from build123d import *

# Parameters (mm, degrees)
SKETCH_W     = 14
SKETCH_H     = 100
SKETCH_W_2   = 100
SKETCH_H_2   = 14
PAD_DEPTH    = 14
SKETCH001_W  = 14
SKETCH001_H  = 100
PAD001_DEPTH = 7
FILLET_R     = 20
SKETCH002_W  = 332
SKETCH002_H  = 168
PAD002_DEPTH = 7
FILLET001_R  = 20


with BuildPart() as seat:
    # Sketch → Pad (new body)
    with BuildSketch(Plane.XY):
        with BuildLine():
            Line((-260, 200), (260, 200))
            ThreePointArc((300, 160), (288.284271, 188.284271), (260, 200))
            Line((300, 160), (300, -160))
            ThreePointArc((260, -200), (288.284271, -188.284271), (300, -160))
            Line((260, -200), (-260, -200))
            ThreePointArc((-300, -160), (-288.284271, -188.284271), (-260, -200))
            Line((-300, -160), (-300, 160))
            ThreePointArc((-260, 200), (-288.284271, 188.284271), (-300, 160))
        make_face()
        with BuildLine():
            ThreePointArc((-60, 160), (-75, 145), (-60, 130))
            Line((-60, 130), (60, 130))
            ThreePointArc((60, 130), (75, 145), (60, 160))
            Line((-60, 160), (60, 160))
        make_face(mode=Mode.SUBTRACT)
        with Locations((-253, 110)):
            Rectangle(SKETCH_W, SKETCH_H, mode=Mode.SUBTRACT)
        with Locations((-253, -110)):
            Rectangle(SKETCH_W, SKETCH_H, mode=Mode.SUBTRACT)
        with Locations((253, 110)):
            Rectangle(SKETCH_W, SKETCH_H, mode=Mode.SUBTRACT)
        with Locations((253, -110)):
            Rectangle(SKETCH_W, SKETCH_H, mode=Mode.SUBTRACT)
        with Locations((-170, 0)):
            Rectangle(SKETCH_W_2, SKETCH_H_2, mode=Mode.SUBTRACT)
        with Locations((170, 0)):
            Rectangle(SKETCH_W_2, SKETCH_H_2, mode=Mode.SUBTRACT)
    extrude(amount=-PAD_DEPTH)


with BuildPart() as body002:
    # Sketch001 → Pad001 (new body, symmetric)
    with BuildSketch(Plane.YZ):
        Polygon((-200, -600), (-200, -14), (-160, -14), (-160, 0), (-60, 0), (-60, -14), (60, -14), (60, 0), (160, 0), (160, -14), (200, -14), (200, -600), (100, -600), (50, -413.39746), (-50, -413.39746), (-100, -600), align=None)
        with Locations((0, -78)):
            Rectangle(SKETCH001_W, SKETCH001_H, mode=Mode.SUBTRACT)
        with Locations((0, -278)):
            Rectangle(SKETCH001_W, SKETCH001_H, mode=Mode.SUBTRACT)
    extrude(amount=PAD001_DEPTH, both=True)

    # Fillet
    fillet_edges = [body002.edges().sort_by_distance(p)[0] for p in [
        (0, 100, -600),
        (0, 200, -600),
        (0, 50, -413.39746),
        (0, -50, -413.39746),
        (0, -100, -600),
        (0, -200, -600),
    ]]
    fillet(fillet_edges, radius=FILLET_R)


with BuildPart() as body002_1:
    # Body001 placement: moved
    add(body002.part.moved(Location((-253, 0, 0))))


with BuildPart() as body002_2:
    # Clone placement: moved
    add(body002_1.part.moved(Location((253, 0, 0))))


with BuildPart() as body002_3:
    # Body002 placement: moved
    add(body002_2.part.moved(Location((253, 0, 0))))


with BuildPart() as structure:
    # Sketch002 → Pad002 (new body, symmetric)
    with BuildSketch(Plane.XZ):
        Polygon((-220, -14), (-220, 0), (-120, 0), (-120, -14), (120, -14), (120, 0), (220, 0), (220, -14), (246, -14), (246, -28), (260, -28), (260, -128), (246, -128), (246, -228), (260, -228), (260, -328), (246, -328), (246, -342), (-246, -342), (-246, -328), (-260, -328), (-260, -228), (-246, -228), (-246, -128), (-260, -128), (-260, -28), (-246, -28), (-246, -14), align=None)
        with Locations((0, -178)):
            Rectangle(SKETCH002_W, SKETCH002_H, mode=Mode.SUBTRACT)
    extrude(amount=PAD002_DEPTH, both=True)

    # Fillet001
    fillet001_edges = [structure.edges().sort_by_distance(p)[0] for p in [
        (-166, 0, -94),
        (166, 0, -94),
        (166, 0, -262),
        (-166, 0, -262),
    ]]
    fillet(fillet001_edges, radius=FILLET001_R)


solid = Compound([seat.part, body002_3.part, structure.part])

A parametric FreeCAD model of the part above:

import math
import FreeCAD as App
import Part
import Sketcher
from FreeCAD import Vector
Q = App.Units.Quantity


def edges_at(feature, points):
    """Names of the edges that pass closest to the given points."""
    edges = feature.Shape.Edges
    near = lambda p: min(range(len(edges)), key=lambda i: edges[i].distToShape(Part.Vertex(*p))[0])
    return sorted({f"Edge{near(p) + 1}" for p in points})


def add_polygon(sketch, points):
    """Adds a closed chain of lines whose ends are joined by coincident constraints."""
    first, n = sketch.GeometryCount, len(points)
    for a, b in zip(points, points[1:] + points[:1]):
        sketch.addGeometry(Part.LineSegment(App.Vector(*a, 0), App.Vector(*b, 0)), False)
    for i in range(n):
        sketch.addConstraint(Sketcher.Constraint("Coincident", first + i, 2, first + (i + 1) % n, 1))

doc = App.newDocument("Part")
body = doc.addObject("PartDesign::Body", "Body")

sketch1 = doc.addObject("Sketcher::SketchObject", "Sketch")
body.addObject(sketch1)
sketch1.AttachmentSupport = (doc.XY_Plane, [""])
sketch1.MapMode = "FlatFace"
sketch1.addGeometry(Part.LineSegment(Vector(260, 200, 0), Vector(-260, 200, 0)), False)
sketch1.addGeometry(Part.ArcOfCircle(Part.Circle(Vector(-259.999999, 159.999999, 0), Vector(0, 0, 1), 40.000001), math.radians(90.000001), math.radians(179.999999)), False)
sketch1.addGeometry(Part.LineSegment(Vector(-300, 160, 0), Vector(-300, -160, 0)), False)
sketch1.addGeometry(Part.ArcOfCircle(Part.Circle(Vector(-259.999999, -159.999999, 0), Vector(0, 0, 1), 40.000001), math.radians(-179.999999), math.radians(-90.000001)), False)
sketch1.addGeometry(Part.LineSegment(Vector(-260, -200, 0), Vector(260, -200, 0)), False)
sketch1.addGeometry(Part.ArcOfCircle(Part.Circle(Vector(259.999999, -159.999999, 0), Vector(0, 0, 1), 40.000001), math.radians(-89.999999), math.radians(-0.000001)), False)
sketch1.addGeometry(Part.LineSegment(Vector(300, -160, 0), Vector(300, 160, 0)), False)
sketch1.addGeometry(Part.ArcOfCircle(Part.Circle(Vector(259.999999, 159.999999, 0), Vector(0, 0, 1), 40.000001), math.radians(0.000001), math.radians(89.999999)), False)
add_polygon(sketch1, [(246, -160), (246, -60), (260, -60), (260, -160)])
add_polygon(sketch1, [(-260, -160), (-260, -60), (-246, -60), (-246, -160)])
add_polygon(sketch1, [(120, -7), (120, 7), (220, 7), (220, -7)])
add_polygon(sketch1, [(246, 60), (246, 160), (260, 160), (260, 60)])
add_polygon(sketch1, [(-220, -7), (-220, 7), (-120, 7), (-120, -7)])
sketch1.addGeometry(Part.LineSegment(Vector(-60, 160, 0), Vector(60, 160, 0)), False)
sketch1.addGeometry(Part.ArcOfCircle(Part.Circle(Vector(60, 145, 0), Vector(0, 0, 1), 15), math.radians(-90), math.radians(90)), False)
sketch1.addGeometry(Part.LineSegment(Vector(60, 130, 0), Vector(-60, 130, 0)), False)
sketch1.addGeometry(Part.ArcOfCircle(Part.Circle(Vector(-60, 145, 0), Vector(0, 0, 1), 15), math.radians(90), math.radians(270)), False)
add_polygon(sketch1, [(-260, 60), (-260, 160), (-246, 160), (-246, 60)])
sketch1.addConstraint([
    Sketcher.Constraint("Tangent", 0, 2, 1, 1),
    Sketcher.Constraint("Tangent", 1, 2, 2, 1),
    Sketcher.Constraint("Tangent", 2, 2, 3, 1),
    Sketcher.Constraint("Tangent", 3, 2, 4, 1),
    Sketcher.Constraint("Tangent", 4, 2, 5, 1),
    Sketcher.Constraint("Tangent", 5, 2, 6, 1),
    Sketcher.Constraint("Tangent", 6, 2, 7, 1),
    Sketcher.Constraint("Tangent", 7, 2, 0, 1),
    Sketcher.Constraint("Tangent", 28, 2, 29, 2),
    Sketcher.Constraint("Tangent", 29, 1, 30, 1),
    Sketcher.Constraint("Tangent", 30, 2, 31, 2),
    Sketcher.Constraint("Tangent", 31, 1, 28, 1),
    Sketcher.Constraint("Horizontal", 0),
    Sketcher.Constraint("Vertical", 2),
    Sketcher.Constraint("Horizontal", 4),
    Sketcher.Constraint("Vertical", 6),
    Sketcher.Constraint("Vertical", 8),
    Sketcher.Constraint("Horizontal", 9),
    Sketcher.Constraint("Vertical", 10),
    Sketcher.Constraint("Horizontal", 11),
    Sketcher.Constraint("Vertical", 12),
    Sketcher.Constraint("Horizontal", 13),
    Sketcher.Constraint("Vertical", 14),
    Sketcher.Constraint("Horizontal", 15),
    Sketcher.Constraint("Vertical", 16),
    Sketcher.Constraint("Horizontal", 17),
    Sketcher.Constraint("Vertical", 18),
    Sketcher.Constraint("Horizontal", 19),
    Sketcher.Constraint("Vertical", 20),
    Sketcher.Constraint("Horizontal", 21),
    Sketcher.Constraint("Vertical", 22),
    Sketcher.Constraint("Horizontal", 23),
    Sketcher.Constraint("Vertical", 24),
    Sketcher.Constraint("Horizontal", 25),
    Sketcher.Constraint("Vertical", 26),
    Sketcher.Constraint("Horizontal", 27),
    Sketcher.Constraint("Horizontal", 28),
    Sketcher.Constraint("Horizontal", 30),
    Sketcher.Constraint("Vertical", 32),
    Sketcher.Constraint("Horizontal", 33),
    Sketcher.Constraint("Vertical", 34),
    Sketcher.Constraint("Horizontal", 35),
    Sketcher.Constraint("Coincident", 10, 2, 5, 3),
    Sketcher.Constraint("Coincident", 15, 2, 3, 3),
    Sketcher.Constraint("Coincident", 21, 2, 7, 3),
    Sketcher.Constraint("Coincident", 32, 2, 1, 3),
    Sketcher.Constraint("Equal", 1, 3),
    Sketcher.Constraint("Equal", 3, 5),
    Sketcher.Constraint("Equal", 5, 7),
    Sketcher.Constraint("Symmetric", 1, 3, 5, 3, -1, 1),
    Sketcher.Constraint("Symmetric", 13, 2, 23, 2, -1, 1),
    Sketcher.Constraint("Symmetric", 18, 2, 24, 2, -1, 1),
    Sketcher.Constraint("Symmetric", 16, 2, 26, 2, -1, 1),
    Sketcher.Constraint("Symmetric", 8, 2, 34, 2, -1, 1),
    Sketcher.Constraint("Symmetric", 8, 2, 13, 2, -2),
    Sketcher.Constraint("Horizontal", 17, 2, 24, 2),
    Sketcher.Constraint("Horizontal", 21, 2, 28, 2),
    Sketcher.Constraint("Equal", 27, 8),
    Sketcher.Constraint("Equal", 35, 16),
    Sketcher.Constraint("Radius", 1, 40.000001),
    Sketcher.Constraint("Radius", 29, 15.0),
    Sketcher.Constraint("DistanceX", 0, 2, 0, 1, 520.0),
    Sketcher.Constraint("DistanceX", 9, 1, 9, 2, 14.0),
    Sketcher.Constraint("DistanceX", 17, 1, 17, 2, 100.0),
    Sketcher.Constraint("DistanceX", 28, 1, 28, 2, 120.0),
    Sketcher.Constraint("DistanceY", 2, 2, 2, 1, 320.0),
    Sketcher.Constraint("DistanceX", -1, 1, 29, 3, 60.0),
    Sketcher.Constraint("DistanceX", -1, 1, 16, 2, 120.0),
])
pad1 = doc.addObject("PartDesign::Pad", "Pad")
body.addObject(pad1)
pad1.Profile = sketch1
pad1.Length = 14
pad1.Reversed = True
body2 = doc.addObject("PartDesign::Body", "Body001")

sketch2 = doc.addObject("Sketcher::SketchObject", "Sketch001")
body2.addObject(sketch2)
sketch2.AttachmentSupport = (doc.getObject("YZ_Plane001"), [""])
sketch2.MapMode = "FlatFace"
add_polygon(sketch2, [(-200, -14), (-200, -600), (-100, -600), (-50, -413.39746), (50, -413.39746), (100, -600), (200, -600), (200, -14), (160, -14), (160, 0), (60, 0), (60, -14), (-60, -14), (-60, 0), (-160, 0), (-160, -14)])
add_polygon(sketch2, [(-7, -328), (-7, -228), (7, -228), (7, -328)])
add_polygon(sketch2, [(-7, -128), (-7, -28), (7, -28), (7, -128)])
sketch2.addConstraint([
    Sketcher.Constraint("Vertical", 0),
    Sketcher.Constraint("Horizontal", 1),
    Sketcher.Constraint("Horizontal", 3),
    Sketcher.Constraint("Horizontal", 5),
    Sketcher.Constraint("Vertical", 6),
    Sketcher.Constraint("Horizontal", 7),
    Sketcher.Constraint("Vertical", 8),
    Sketcher.Constraint("Horizontal", 9),
    Sketcher.Constraint("Vertical", 10),
    Sketcher.Constraint("Horizontal", 11),
    Sketcher.Constraint("Vertical", 12),
    Sketcher.Constraint("Horizontal", 13),
    Sketcher.Constraint("Vertical", 14),
    Sketcher.Constraint("Horizontal", 15),
    Sketcher.Constraint("Vertical", 16),
    Sketcher.Constraint("Horizontal", 17),
    Sketcher.Constraint("Vertical", 18),
    Sketcher.Constraint("Horizontal", 19),
    Sketcher.Constraint("Vertical", 20),
    Sketcher.Constraint("Horizontal", 21),
    Sketcher.Constraint("Vertical", 22),
    Sketcher.Constraint("Horizontal", 23),
    Sketcher.Constraint("Symmetric", 9, 2, 12, 2, -1, 1),
    Sketcher.Constraint("Symmetric", 1, 2, 4, 2, -2),
    Sketcher.Constraint("Symmetric", 8, 2, 13, 2, -2),
    Sketcher.Constraint("Symmetric", 6, 2, 15, 2, -2),
    Sketcher.Constraint("Horizontal", 7, 2, 10, 2),
    Sketcher.Constraint("Vertical", 19, 2, 20, 2),
    Sketcher.Constraint("Vertical", 18, 2, 21, 2),
    Sketcher.Constraint("Equal", 1, 3),
    Sketcher.Constraint("Equal", 5, 9),
    Sketcher.Constraint("Equal", 23, 8),
    Sketcher.Constraint("Equal", 13, 16),
    Sketcher.Constraint("Equal", 18, 20),
    Sketcher.Constraint("Equal", 2, 4),
    Sketcher.Constraint("DistanceX", 1, 1, 1, 2, 100.0),
    Sketcher.Constraint("DistanceX", 7, 2, 7, 1, 40.0),
    Sketcher.Constraint("DistanceX", 11, 2, 11, 1, 120.0),
    Sketcher.Constraint("DistanceX", 17, 1, 17, 2, 14.0),
    Sketcher.Constraint("DistanceY", 0, 2, 0, 1, 586.0),
    Sketcher.Constraint("Angle", 2, Q("75 deg")),
    Sketcher.Constraint("DistanceX", 16, 2, -1, 1, 7.0),
    Sketcher.Constraint("DistanceY", 16, 2, -1, 1, 228.0),
    Sketcher.Constraint("DistanceY", 20, 2, -1, 1, 28.0),
])
pad2 = doc.addObject("PartDesign::Pad", "Pad001")
body2.addObject(pad2)
pad2.Profile = sketch2
pad2.Length = 14
pad2.Midplane = True
doc.recompute()

fillet = doc.addObject("PartDesign::Fillet", "Fillet")
body2.addObject(fillet)
fillet.Base = (pad2, edges_at(pad2, [
    (0, 100, -600),
    (0, 200, -600),
    (0, 50, -413.397),
    (0, -50, -413.397),
    (0, -100, -600),
    (0, -200, -600),
]))
fillet.Radius = 20
body3 = doc.addObject("PartDesign::Body", "Body002")
doc.recompute()

body2.Placement = App.Placement(Vector(-253, 0, 0), App.Rotation(Vector(0, 0, 1), 0))
boolean = doc.addObject("PartDesign::Boolean", "Boolean")
body3.addObject(boolean)
boolean.Type = "Fuse"
boolean.addObjects([body2])
body4 = doc.addObject("PartDesign::Body", "Body003")
doc.recompute()

body3.Placement = App.Placement(Vector(253, 0, 0), App.Rotation(Vector(0, 0, 1), 0))
boolean2 = doc.addObject("PartDesign::Boolean", "Boolean001")
body4.addObject(boolean2)
boolean2.Type = "Fuse"
boolean2.addObjects([body3])
body5 = doc.addObject("PartDesign::Body", "Body004")
doc.recompute()

body4.Placement = App.Placement(Vector(253, 0, 0), App.Rotation(Vector(0, 0, 1), 0))
boolean3 = doc.addObject("PartDesign::Boolean", "Boolean002")
body5.addObject(boolean3)
boolean3.Type = "Fuse"
boolean3.addObjects([body4])
body6 = doc.addObject("PartDesign::Body", "Body005")

sketch3 = doc.addObject("Sketcher::SketchObject", "Sketch002")
body6.addObject(sketch3)
sketch3.AttachmentSupport = (doc.getObject("XZ_Plane005"), [""])
sketch3.MapMode = "FlatFace"
add_polygon(sketch3, [(-220, 0), (-220, -14), (-246, -14), (-246, -28), (-260, -28), (-260, -128), (-246, -128), (-246, -228), (-260, -228), (-260, -328), (-246, -328), (-246, -342), (246, -342), (246, -328), (260, -328), (260, -228), (246, -228), (246, -128), (260, -128), (260, -28), (246, -28), (246, -14), (220, -14), (220, 0), (120, 0), (120, -14), (-120, -14), (-120, 0)])
add_polygon(sketch3, [(-166, -262), (-166, -94), (166, -94), (166, -262)])
sketch3.addConstraint([
    Sketcher.Constraint("Vertical", 0),
    Sketcher.Constraint("Horizontal", 1),
    Sketcher.Constraint("Vertical", 2),
    Sketcher.Constraint("Horizontal", 3),
    Sketcher.Constraint("Vertical", 4),
    Sketcher.Constraint("Horizontal", 5),
    Sketcher.Constraint("Vertical", 6),
    Sketcher.Constraint("Horizontal", 7),
    Sketcher.Constraint("Vertical", 8),
    Sketcher.Constraint("Horizontal", 9),
    Sketcher.Constraint("Vertical", 10),
    Sketcher.Constraint("Horizontal", 11),
    Sketcher.Constraint("Vertical", 12),
    Sketcher.Constraint("Horizontal", 13),
    Sketcher.Constraint("Vertical", 14),
    Sketcher.Constraint("Horizontal", 15),
    Sketcher.Constraint("Vertical", 16),
    Sketcher.Constraint("Horizontal", 17),
    Sketcher.Constraint("Vertical", 18),
    Sketcher.Constraint("Horizontal", 19),
    Sketcher.Constraint("Vertical", 20),
    Sketcher.Constraint("Horizontal", 21),
    Sketcher.Constraint("Vertical", 22),
    Sketcher.Constraint("Horizontal", 23),
    Sketcher.Constraint("Vertical", 24),
    Sketcher.Constraint("Horizontal", 25),
    Sketcher.Constraint("Vertical", 26),
    Sketcher.Constraint("Horizontal", 27),
    Sketcher.Constraint("Vertical", 28),
    Sketcher.Constraint("Horizontal", 29),
    Sketcher.Constraint("Vertical", 30),
    Sketcher.Constraint("Horizontal", 31),
    Sketcher.Constraint("Symmetric", 23, 2, 26, 2, -1, 1),
    Sketcher.Constraint("Symmetric", 9, 2, 12, 2, -2),
    Sketcher.Constraint("Symmetric", 7, 2, 14, 2, -2),
    Sketcher.Constraint("Symmetric", 5, 2, 16, 2, -2),
    Sketcher.Constraint("Symmetric", 3, 2, 18, 2, -2),
    Sketcher.Constraint("Symmetric", 1, 2, 20, 2, -2),
    Sketcher.Constraint("Symmetric", 22, 2, 27, 2, -2),
    Sketcher.Constraint("Horizontal", 21, 2, 24, 2),
    Sketcher.Constraint("Vertical", 2, 2, 5, 2),
    Sketcher.Constraint("Vertical", 4, 2, 7, 2),
    Sketcher.Constraint("Vertical", 6, 2, 9, 2),
    Sketcher.Constraint("Equal", 19, 0),
    Sketcher.Constraint("Equal", 0, 2),
    Sketcher.Constraint("Equal", 27, 4),
    Sketcher.Constraint("Equal", 4, 6),
    Sketcher.Constraint("Equal", 6, 8),
    Sketcher.Constraint("Equal", 2, 10),
    Sketcher.Constraint("DistanceX", 1, 2, 1, 1, 26.0),
    Sketcher.Constraint("DistanceX", 3, 2, 3, 1, 14.0),
    Sketcher.Constraint("DistanceX", 11, 1, 11, 2, 492.0),
    Sketcher.Constraint("DistanceX", 23, 2, 23, 1, 100.0),
    Sketcher.Constraint("DistanceX", 29, 1, 29, 2, 332.0),
    Sketcher.Constraint("DistanceY", 28, 1, 28, 2, 168.0),
    Sketcher.Constraint("DistanceX", 28, 2, -1, 1, 166.0),
    Sketcher.Constraint("DistanceY", 28, 2, -1, 1, 94.0),
])
pad3 = doc.addObject("PartDesign::Pad", "Pad002")
body6.addObject(pad3)
pad3.Profile = sketch3
pad3.Length = 14
pad3.Midplane = True
doc.recompute()

fillet2 = doc.addObject("PartDesign::Fillet", "Fillet001")
body6.addObject(fillet2)
fillet2.Base = (pad3, edges_at(pad3, [
    (-166, 0, -94),
    (166, 0, -94),
    (166, 0, -262),
    (-166, 0, -262),
]))
fillet2.Radius = 20

doc.recompute()
